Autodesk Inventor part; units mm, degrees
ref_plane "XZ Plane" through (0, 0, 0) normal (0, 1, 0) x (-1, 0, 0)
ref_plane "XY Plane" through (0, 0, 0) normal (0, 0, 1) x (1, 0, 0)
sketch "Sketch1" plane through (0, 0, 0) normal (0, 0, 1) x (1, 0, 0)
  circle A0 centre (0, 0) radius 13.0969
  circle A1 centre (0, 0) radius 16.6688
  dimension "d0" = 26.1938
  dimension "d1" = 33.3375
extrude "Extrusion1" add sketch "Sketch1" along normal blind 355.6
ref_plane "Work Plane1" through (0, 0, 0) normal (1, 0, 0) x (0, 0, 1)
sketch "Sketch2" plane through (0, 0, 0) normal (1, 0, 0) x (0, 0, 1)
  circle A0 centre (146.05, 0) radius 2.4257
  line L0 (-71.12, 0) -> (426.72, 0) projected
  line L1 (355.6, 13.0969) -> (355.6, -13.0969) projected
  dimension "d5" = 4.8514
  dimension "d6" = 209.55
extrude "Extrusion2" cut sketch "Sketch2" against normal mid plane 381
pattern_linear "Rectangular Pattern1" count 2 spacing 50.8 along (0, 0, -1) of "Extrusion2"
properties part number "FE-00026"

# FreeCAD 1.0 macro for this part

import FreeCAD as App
import Part
import Sketcher
from FreeCAD import Vector
Q = App.Units.Quantity

doc = App.newDocument("Part")
body = doc.addObject("PartDesign::Body", "Body")

sketch1 = body.newObject("Sketcher::SketchObject", "Sketch")
sketch1.AttachmentSupport = (doc.getObject("XY_Plane"), [""])
sketch1.MapMode = "FlatFace"
sketch1.addGeometry([
    Part.Circle(Vector(0, 0, 0), Vector(0, 0, 1), 16.6688),
    Part.Circle(Vector(0, 0, 0), Vector(0, 0, 1), 13.0969),
], False)
sketch1.addConstraint([
    Sketcher.Constraint("Coincident", 0, 3, -1, 1),
    Sketcher.Constraint("Coincident", 1, 3, -1, 1),
    Sketcher.Constraint("Diameter", 0, Q("1.3125 in")),
    Sketcher.Constraint("Diameter", 1, Q("1.031252 in")),
])
pad1 = body.newObject("PartDesign::Pad", "Pad")
pad1.Profile = sketch1
pad1.Length = Q("14 in")

sketch2 = body.newObject("Sketcher::SketchObject", "Sketch001")
sketch2.AttachmentSupport = (doc.getObject("YZ_Plane"), [""])
sketch2.MapMode = "FlatFace"
sketch2.addGeometry(Part.Circle(Vector(0, 146.05, 0), Vector(0, 0, 1), 2.4257), False)
sketch2.addConstraint([
    Sketcher.Constraint("PointOnObject", 0, 3, -2),
    Sketcher.Constraint("Diameter", 0, Q("0.191 in")),
    Sketcher.Constraint("DistanceY", -1, 1, 0, 3, Q("5.75 in")),
])
pocket1 = body.newObject("PartDesign::Pocket", "Pocket")
pocket1.Profile = sketch2
pocket1.Length = Q("15 in")
pocket1.Midplane = True
doc.recompute()

linearpattern = body.newObject("PartDesign::LinearPattern", "LinearPattern")
linearpattern.Originals = [pocket1]
linearpattern.Direction = (doc.getObject("Z_Axis"), [""])
linearpattern.Mode = "offset"
linearpattern.Offset = Q("2 in")
linearpattern.Occurrences = 2
linearpattern.Reversed = True
body.Tip = linearpattern

doc.recompute()
